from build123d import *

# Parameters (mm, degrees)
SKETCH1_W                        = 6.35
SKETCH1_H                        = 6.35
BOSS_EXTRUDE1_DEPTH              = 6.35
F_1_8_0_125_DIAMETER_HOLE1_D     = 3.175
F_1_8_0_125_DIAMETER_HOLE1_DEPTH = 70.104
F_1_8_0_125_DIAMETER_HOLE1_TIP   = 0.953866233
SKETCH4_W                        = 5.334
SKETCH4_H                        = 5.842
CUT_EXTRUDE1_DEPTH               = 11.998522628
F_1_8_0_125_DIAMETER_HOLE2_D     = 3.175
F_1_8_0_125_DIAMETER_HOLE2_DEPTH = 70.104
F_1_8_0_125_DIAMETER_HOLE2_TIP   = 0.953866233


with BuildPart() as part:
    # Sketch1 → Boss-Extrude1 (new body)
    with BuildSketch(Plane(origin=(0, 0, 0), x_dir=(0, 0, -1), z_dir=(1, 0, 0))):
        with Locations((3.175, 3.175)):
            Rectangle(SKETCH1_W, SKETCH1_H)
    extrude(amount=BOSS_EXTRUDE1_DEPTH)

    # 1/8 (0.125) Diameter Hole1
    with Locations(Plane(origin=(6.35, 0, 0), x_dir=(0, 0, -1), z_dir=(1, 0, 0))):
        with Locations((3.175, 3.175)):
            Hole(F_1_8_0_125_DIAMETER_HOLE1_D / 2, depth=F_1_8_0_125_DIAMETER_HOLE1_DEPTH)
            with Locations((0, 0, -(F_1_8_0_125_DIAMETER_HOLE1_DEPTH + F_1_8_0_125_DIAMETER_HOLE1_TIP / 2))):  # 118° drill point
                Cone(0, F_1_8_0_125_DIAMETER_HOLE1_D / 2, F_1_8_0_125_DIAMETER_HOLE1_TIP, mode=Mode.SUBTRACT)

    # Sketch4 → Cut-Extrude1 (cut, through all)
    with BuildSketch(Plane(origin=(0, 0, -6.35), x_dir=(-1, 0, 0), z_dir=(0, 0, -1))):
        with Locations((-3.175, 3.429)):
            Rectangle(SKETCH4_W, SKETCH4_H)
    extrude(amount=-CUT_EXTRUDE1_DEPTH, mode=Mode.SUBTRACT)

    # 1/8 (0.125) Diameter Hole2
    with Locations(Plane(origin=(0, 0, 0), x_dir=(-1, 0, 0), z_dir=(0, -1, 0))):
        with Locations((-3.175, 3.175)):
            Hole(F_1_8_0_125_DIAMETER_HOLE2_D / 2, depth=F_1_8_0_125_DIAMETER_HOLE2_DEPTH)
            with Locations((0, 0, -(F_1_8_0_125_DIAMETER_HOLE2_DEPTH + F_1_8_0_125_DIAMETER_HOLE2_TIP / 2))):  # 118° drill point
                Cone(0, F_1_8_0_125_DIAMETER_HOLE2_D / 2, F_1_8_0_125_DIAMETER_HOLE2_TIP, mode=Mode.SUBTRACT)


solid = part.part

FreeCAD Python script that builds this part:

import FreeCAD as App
import Part
import Sketcher

V = App.Vector
Q = App.Units.Quantity

doc = App.newDocument("Part")
body = doc.addObject("PartDesign::Body", "Body")

# Sketch on YZ plane
sketch1 = body.newObject("Sketcher::SketchObject", "Sketch")
sketch1.AttachmentSupport = (doc.getObject("YZ_Plane"), [""])
sketch1.MapMode = "FlatFace"
sketch1.addGeometry(Part.LineSegment(V(6, 0, 0), V(0, 0, 0)), False)
sketch1.addGeometry(Part.LineSegment(V(0, 0, 0), V(0, -6, 0)), False)
sketch1.addGeometry(Part.LineSegment(V(0, -6, 0), V(6, -6, 0)), False)
sketch1.addGeometry(Part.LineSegment(V(6, -6, 0), V(6, 0, 0)), False)
sketch1.addConstraint(Sketcher.Constraint("Coincident", 0, 2, 1, 1))
sketch1.addConstraint(Sketcher.Constraint("Coincident", 1, 2, 2, 1))
sketch1.addConstraint(Sketcher.Constraint("Coincident", 2, 2, 3, 1))
sketch1.addConstraint(Sketcher.Constraint("Coincident", 3, 2, 0, 1))
sketch1.addConstraint(Sketcher.Constraint("Horizontal", 0))
sketch1.addConstraint(Sketcher.Constraint("Vertical", 1))
sketch1.addConstraint(Sketcher.Constraint("Horizontal", 2))
sketch1.addConstraint(Sketcher.Constraint("Vertical", 3))
sketch1.addConstraint(Sketcher.Constraint("Coincident", 0, 2, -1, 1))
sketch1.addConstraint(Sketcher.Constraint("Equal", 2, 1))
sketch1.addConstraint(Sketcher.Constraint("DistanceX", 0, 2, 0, 1, Q("0.25 in")))
pad1 = body.newObject("PartDesign::Pad", "Pad")
pad1.Profile = sketch1
pad1.Length = Q("0.25 in")

# Sketch on YZ plane
sketch2 = body.newObject("Sketcher::SketchObject", "Sketch001")
sketch2.AttachmentSupport = (doc.getObject("YZ_Plane"), [""])
sketch2.MapMode = "FlatFace"
sketch2.AttachmentOffset = App.Placement(V(0, 0, 0.25 * 25.4), App.Rotation())
sketch2.addGeometry(Part.Circle(V(3.2, -3.2, 0), V(0, 0, 1), 1.6), False)
sketch2.addConstraint(Sketcher.Constraint("Diameter", 0, Q("0.125 in")))
sketch2.addConstraint(Sketcher.Constraint("DistanceX", -1, 1, 0, 3, Q("0.125 in")))
sketch2.addConstraint(Sketcher.Constraint("DistanceY", 0, 3, -1, 1, Q("0.125 in")))
doc.recompute()
hole = body.newObject("PartDesign::Hole", "Hole")
hole.Profile = sketch2
hole.ThreadType = "None"
hole.Diameter = Q("0.125 in")
hole.DepthType = "Dimension"
hole.Depth = Q("2.76 in")
hole.DrillPoint = "Angled"
hole.DrillPointAngle = 118

# Sketch on XY plane
sketch3 = body.newObject("Sketcher::SketchObject", "Sketch002")
sketch3.AttachmentSupport = (doc.getObject("XY_Plane"), [""])
sketch3.MapMode = "FlatFace"
sketch3.AttachmentOffset = App.Placement(V(0, 0, -0.25 * 25.4), App.Rotation())
sketch3.addGeometry(Part.LineSegment(V(6, 6, 0), V(6, 1, 0)), False)
sketch3.addGeometry(Part.LineSegment(V(6, 1, 0), V(1, 1, 0)), False)
sketch3.addGeometry(Part.LineSegment(V(1, 1, 0), V(1, 6, 0)), False)
sketch3.addGeometry(Part.LineSegment(V(1, 6, 0), V(6, 6, 0)), False)
sketch3.addConstraint(Sketcher.Constraint("Coincident", 0, 2, 1, 1))
sketch3.addConstraint(Sketcher.Constraint("Coincident", 1, 2, 2, 1))
sketch3.addConstraint(Sketcher.Constraint("Coincident", 2, 2, 3, 1))
sketch3.addConstraint(Sketcher.Constraint("Coincident", 3, 2, 0, 1))
sketch3.addConstraint(Sketcher.Constraint("Vertical", 0))
sketch3.addConstraint(Sketcher.Constraint("Horizontal", 1))
sketch3.addConstraint(Sketcher.Constraint("Vertical", 2))
sketch3.addConstraint(Sketcher.Constraint("Horizontal", 3))
sketch3.addConstraint(Sketcher.Constraint("DistanceX", 1, 2, 1, 1, Q("0.21 in")))
sketch3.addConstraint(Sketcher.Constraint("DistanceY", 0, 2, 0, 1, Q("0.23 in")))
sketch3.addConstraint(Sketcher.Constraint("DistanceX", -1, 1, 0, 2, Q("0.23 in")))
sketch3.addConstraint(Sketcher.Constraint("DistanceY", -1, 1, 0, 2, Q("0.02 in")))
pocket1 = body.newObject("PartDesign::Pocket", "Pocket")
pocket1.Profile = sketch3
pocket1.Type = "ThroughAll"
pocket1.Reversed = True

# Sketch on XZ plane
sketch4 = body.newObject("Sketcher::SketchObject", "Sketch003")
sketch4.AttachmentSupport = (doc.getObject("XZ_Plane"), [""])
sketch4.MapMode = "FlatFace"
sketch4.addGeometry(Part.Circle(V(3.2, -3.2, 0), V(0, 0, 1), 1.6), False)
sketch4.addConstraint(Sketcher.Constraint("Diameter", 0, Q("0.125 in")))
sketch4.addConstraint(Sketcher.Constraint("DistanceX", -1, 1, 0, 3, Q("0.125 in")))
sketch4.addConstraint(Sketcher.Constraint("DistanceY", 0, 3, -1, 1, Q("0.125 in")))
doc.recompute()
hole2 = body.newObject("PartDesign::Hole", "Hole001")
hole2.Profile = sketch4
hole2.ThreadType = "None"
hole2.Diameter = Q("0.125 in")
hole2.DepthType = "Dimension"
hole2.Depth = Q("2.76 in")
hole2.DrillPoint = "Angled"
hole2.DrillPointAngle = 118

doc.recompute()
